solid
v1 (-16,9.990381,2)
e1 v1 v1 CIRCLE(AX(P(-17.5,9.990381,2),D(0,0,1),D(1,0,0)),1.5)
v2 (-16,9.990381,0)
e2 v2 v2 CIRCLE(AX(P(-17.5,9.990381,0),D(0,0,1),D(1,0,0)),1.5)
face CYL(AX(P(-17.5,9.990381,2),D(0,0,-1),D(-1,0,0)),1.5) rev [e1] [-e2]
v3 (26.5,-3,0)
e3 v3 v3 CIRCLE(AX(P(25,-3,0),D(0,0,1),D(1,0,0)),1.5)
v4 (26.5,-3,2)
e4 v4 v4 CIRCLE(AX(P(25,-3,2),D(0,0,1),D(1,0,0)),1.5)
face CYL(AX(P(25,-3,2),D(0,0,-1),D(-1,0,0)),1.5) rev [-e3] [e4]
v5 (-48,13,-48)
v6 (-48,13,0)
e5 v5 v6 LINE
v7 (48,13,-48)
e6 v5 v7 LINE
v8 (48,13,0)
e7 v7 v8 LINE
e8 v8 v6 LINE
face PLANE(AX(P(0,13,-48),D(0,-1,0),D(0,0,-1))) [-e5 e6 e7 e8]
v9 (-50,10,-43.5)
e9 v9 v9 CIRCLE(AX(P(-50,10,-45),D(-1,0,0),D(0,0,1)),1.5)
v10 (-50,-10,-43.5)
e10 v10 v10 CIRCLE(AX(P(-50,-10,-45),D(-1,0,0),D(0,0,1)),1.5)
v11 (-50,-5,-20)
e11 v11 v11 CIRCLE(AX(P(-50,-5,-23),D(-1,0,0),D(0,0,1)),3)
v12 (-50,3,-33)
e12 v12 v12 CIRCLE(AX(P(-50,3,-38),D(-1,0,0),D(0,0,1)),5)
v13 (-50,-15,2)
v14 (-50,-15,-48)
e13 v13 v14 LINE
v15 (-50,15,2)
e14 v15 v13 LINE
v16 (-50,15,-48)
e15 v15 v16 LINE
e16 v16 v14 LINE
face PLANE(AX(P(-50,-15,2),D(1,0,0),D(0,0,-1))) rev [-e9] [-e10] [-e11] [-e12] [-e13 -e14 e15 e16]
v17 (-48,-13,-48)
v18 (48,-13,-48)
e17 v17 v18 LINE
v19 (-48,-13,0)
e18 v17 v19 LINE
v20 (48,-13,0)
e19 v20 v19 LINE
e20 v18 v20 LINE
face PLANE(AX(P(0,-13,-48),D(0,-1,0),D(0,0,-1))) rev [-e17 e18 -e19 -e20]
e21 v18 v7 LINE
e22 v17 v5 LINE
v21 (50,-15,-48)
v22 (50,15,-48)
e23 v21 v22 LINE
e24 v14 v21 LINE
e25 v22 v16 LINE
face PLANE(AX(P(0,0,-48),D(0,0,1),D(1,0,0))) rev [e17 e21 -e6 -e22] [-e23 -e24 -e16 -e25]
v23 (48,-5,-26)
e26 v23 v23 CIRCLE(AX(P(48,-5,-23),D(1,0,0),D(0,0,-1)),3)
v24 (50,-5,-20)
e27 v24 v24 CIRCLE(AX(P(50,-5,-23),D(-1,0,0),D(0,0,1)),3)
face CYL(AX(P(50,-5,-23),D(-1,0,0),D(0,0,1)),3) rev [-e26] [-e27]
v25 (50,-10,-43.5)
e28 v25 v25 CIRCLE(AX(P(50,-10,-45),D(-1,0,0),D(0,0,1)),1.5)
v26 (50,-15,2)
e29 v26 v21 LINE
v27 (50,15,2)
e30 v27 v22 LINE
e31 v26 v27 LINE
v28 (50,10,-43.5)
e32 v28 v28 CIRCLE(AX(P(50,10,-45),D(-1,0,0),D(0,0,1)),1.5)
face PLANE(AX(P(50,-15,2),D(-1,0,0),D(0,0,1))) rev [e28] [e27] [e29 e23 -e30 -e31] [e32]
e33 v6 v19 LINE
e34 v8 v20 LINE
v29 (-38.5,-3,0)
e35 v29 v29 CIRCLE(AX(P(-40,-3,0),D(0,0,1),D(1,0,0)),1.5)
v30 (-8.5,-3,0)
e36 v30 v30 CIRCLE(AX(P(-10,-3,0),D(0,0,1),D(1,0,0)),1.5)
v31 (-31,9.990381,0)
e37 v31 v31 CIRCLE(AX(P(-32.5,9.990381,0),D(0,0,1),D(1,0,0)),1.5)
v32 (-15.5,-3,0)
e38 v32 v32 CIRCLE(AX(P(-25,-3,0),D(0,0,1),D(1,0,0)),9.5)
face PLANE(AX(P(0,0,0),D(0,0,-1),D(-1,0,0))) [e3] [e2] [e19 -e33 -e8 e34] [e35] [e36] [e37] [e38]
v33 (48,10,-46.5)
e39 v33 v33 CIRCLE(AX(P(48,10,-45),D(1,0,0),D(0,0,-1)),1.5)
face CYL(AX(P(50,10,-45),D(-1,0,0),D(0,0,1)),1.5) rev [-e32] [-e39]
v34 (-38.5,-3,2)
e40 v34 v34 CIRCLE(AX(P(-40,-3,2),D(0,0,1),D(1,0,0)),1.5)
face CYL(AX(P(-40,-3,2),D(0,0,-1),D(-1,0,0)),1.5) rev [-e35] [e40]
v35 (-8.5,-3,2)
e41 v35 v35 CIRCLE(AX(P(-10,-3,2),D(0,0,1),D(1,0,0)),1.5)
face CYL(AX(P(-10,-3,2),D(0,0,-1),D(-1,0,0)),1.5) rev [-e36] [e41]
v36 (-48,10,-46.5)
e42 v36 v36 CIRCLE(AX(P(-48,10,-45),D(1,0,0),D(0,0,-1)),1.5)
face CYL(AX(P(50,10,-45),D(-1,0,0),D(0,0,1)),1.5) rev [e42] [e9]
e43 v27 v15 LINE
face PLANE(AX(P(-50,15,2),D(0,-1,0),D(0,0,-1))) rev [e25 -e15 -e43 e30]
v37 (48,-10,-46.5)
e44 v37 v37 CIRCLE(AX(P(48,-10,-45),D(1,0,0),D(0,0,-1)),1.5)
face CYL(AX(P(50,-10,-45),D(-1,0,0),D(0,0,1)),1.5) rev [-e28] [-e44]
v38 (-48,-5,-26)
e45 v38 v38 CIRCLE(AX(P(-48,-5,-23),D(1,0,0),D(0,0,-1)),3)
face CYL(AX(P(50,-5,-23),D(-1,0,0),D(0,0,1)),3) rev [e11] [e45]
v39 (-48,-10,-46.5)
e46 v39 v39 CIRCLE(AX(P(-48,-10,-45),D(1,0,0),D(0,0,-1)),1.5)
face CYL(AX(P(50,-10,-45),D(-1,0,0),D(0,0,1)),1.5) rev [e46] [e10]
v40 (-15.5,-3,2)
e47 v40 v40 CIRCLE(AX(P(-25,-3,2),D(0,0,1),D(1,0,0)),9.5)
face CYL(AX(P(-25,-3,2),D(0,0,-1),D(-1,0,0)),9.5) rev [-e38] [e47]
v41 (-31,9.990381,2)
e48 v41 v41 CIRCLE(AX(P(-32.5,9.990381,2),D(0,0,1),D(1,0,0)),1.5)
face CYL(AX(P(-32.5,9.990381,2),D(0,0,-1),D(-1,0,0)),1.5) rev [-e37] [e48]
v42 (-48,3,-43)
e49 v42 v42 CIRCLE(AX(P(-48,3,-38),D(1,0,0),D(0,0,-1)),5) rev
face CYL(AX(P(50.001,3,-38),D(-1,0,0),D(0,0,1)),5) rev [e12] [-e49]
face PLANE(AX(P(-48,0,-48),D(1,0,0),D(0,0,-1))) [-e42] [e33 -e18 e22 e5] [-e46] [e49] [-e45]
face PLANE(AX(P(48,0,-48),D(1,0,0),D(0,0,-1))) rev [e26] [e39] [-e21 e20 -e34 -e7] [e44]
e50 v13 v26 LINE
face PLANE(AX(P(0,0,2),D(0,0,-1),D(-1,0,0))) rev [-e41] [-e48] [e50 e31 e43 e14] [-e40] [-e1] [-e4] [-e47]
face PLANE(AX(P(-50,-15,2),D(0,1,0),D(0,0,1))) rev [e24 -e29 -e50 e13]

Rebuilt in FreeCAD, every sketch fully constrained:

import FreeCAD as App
import Part
import Sketcher


def add_polygon(sketch, points):
    """Adds a closed chain of lines whose ends are joined by coincident constraints."""
    first, n = sketch.GeometryCount, len(points)
    for a, b in zip(points, points[1:] + points[:1]):
        sketch.addGeometry(Part.LineSegment(App.Vector(*a, 0), App.Vector(*b, 0)), False)
    for i in range(n):
        sketch.addConstraint(Sketcher.Constraint("Coincident", first + i, 2, first + (i + 1) % n, 1))

doc = App.newDocument("Part")
params = doc.addObject("Spreadsheet::Sheet", "Params")
for row, (alias, value) in enumerate([
    ("sketch1_diameter", "3 mm"),
    ("sketch1_diameter2", "19 mm"),
    ("sketch1_width", "100 mm"),
    ("sketch1_height", "30 mm"),
    ("pad1_length", "2 mm"),
    ("sketch2_width", "100 mm"),
    ("sketch2_width2", "96 mm"),
    ("sketch2_height", "30 mm"),
    ("sketch2_height2", "26 mm"),
    ("pad2_length", "50 mm"),
    ("sketch3_diameter", "10 mm"),
    ("sketch4_diameter", "3 mm"),
    ("sketch5_diameter", "6 mm"),
], start=1):
    params.set(f"A{row}", alias)
    params.set(f"B{row}", "=" + value)
    params.setAlias(f"B{row}", alias)

body = doc.addObject("PartDesign::Body", "Body")

sketch1 = body.newObject("Sketcher::SketchObject", "Sketch")
sketch1.AttachmentSupport = (doc.getObject("XY_Plane"), [""])
sketch1.MapMode = "FlatFace"
add_polygon(sketch1, [(-50, 15), (-50, -15), (50, -15), (50, 15)])
sketch1.addGeometry(Part.Circle(App.Vector(-40, -3, 0), App.Vector(0, 0, 1), 1.5), False)
sketch1.addGeometry(Part.Circle(App.Vector(-25, -3, 0), App.Vector(0, 0, 1), 9.5), False)
sketch1.addGeometry(Part.Circle(App.Vector(-10, -3, 0), App.Vector(0, 0, 1), 1.5), False)
sketch1.addGeometry(Part.Circle(App.Vector(25, -3, 0), App.Vector(0, 0, 1), 1.5), False)
sketch1.addGeometry(Part.Circle(App.Vector(-32.5, 9.990381, 0), App.Vector(0, 0, 1), 1.5), False)
sketch1.addGeometry(Part.Circle(App.Vector(-17.5, 9.990381, 0), App.Vector(0, 0, 1), 1.5), False)
sketch1.addConstraint(Sketcher.Constraint("Vertical", 0))
sketch1.addConstraint(Sketcher.Constraint("Horizontal", 1))
sketch1.addConstraint(Sketcher.Constraint("Vertical", 2))
sketch1.addConstraint(Sketcher.Constraint("Horizontal", 3))
sketch1.addConstraint(Sketcher.Constraint("Equal", 4, 6))
sketch1.addConstraint(Sketcher.Constraint("Equal", 6, 7))
sketch1.addConstraint(Sketcher.Constraint("Equal", 7, 8))
sketch1.addConstraint(Sketcher.Constraint("Equal", 8, 9))
sketch1.addConstraint(Sketcher.Constraint("Symmetric", 0, 2, 2, 2, -1, 1))
sketch1.addConstraint(Sketcher.Constraint("Symmetric", 5, 3, 7, 3, -2))
sketch1.addConstraint(Sketcher.Constraint("Horizontal", 4, 3, 5, 3))
sketch1.addConstraint(Sketcher.Constraint("Horizontal", 5, 3, 6, 3))
sketch1.addConstraint(Sketcher.Constraint("Horizontal", 8, 3, 9, 3))
sketch1.addConstraint(Sketcher.Constraint("Diameter", 4, 3.0))
sketch1.addConstraint(Sketcher.Constraint("Diameter", 5, 19.0))
sketch1.addConstraint(Sketcher.Constraint("DistanceX", 1, 1, 1, 2, 100.0))
sketch1.addConstraint(Sketcher.Constraint("DistanceY", 0, 2, 0, 1, 30.0))
sketch1.addConstraint(Sketcher.Constraint("DistanceX", 4, 3, -1, 1, 40.0))
sketch1.addConstraint(Sketcher.Constraint("DistanceY", 4, 3, -1, 1, 3.0))
sketch1.addConstraint(Sketcher.Constraint("DistanceX", 5, 3, -1, 1, 25.0))
sketch1.addConstraint(Sketcher.Constraint("DistanceX", 6, 3, -1, 1, 10.0))
sketch1.addConstraint(Sketcher.Constraint("DistanceX", 8, 3, 9, 3, 15.0))
sketch1.addConstraint(Sketcher.Constraint("DistanceX", 8, 3, -1, 1, 32.5))
sketch1.addConstraint(Sketcher.Constraint("DistanceY", -1, 1, 8, 3, 9.990381))
sketch1.setExpression("Constraints[17]", "Params.sketch1_diameter")
sketch1.setExpression("Constraints[18]", "Params.sketch1_diameter2")
sketch1.setExpression("Constraints[19]", "Params.sketch1_width")
sketch1.setExpression("Constraints[20]", "Params.sketch1_height")
pad1 = body.newObject("PartDesign::Pad", "Pad")
pad1.Profile = sketch1
pad1.setExpression("Length", "Params.pad1_length")

sketch2 = body.newObject("Sketcher::SketchObject", "Sketch001")
sketch2.AttachmentSupport = (doc.getObject("XY_Plane"), [""])
sketch2.MapMode = "FlatFace"
sketch2.AttachmentOffset = App.Placement(App.Vector(0, 0, 2), App.Rotation())
add_polygon(sketch2, [(-50, 15), (-50, -15), (50, -15), (50, 15)])
add_polygon(sketch2, [(48, -13), (-48, -13), (-48, 13), (48, 13)])
sketch2.addConstraint(Sketcher.Constraint("Vertical", 0))
sketch2.addConstraint(Sketcher.Constraint("Horizontal", 1))
sketch2.addConstraint(Sketcher.Constraint("Vertical", 2))
sketch2.addConstraint(Sketcher.Constraint("Horizontal", 3))
sketch2.addConstraint(Sketcher.Constraint("Horizontal", 4))
sketch2.addConstraint(Sketcher.Constraint("Vertical", 5))
sketch2.addConstraint(Sketcher.Constraint("Horizontal", 6))
sketch2.addConstraint(Sketcher.Constraint("Vertical", 7))
sketch2.addConstraint(Sketcher.Constraint("Symmetric", 0, 2, 2, 2, -1, 1))
sketch2.addConstraint(Sketcher.Constraint("Symmetric", 4, 2, 6, 2, -1, 1))
sketch2.addConstraint(Sketcher.Constraint("DistanceX", 1, 1, 1, 2, 100.0))
sketch2.addConstraint(Sketcher.Constraint("DistanceX", 4, 2, 4, 1, 96.0))
sketch2.addConstraint(Sketcher.Constraint("DistanceY", 0, 2, 0, 1, 30.0))
sketch2.addConstraint(Sketcher.Constraint("DistanceY", 5, 1, 5, 2, 26.0))
sketch2.setExpression("Constraints[18]", "Params.sketch2_width")
sketch2.setExpression("Constraints[19]", "Params.sketch2_width2")
sketch2.setExpression("Constraints[20]", "Params.sketch2_height")
sketch2.setExpression("Constraints[21]", "Params.sketch2_height2")
pad2 = body.newObject("PartDesign::Pad", "Pad001")
pad2.Profile = sketch2
pad2.setExpression("Length", "Params.pad2_length")
pad2.Reversed = True

sketch3 = body.newObject("Sketcher::SketchObject", "Sketch002")
sketch3.AttachmentSupport = (doc.getObject("YZ_Plane"), [""])
sketch3.MapMode = "FlatFace"
sketch3.AttachmentOffset = App.Placement(App.Vector(0, 0, -50), App.Rotation())
sketch3.addGeometry(Part.Circle(App.Vector(3, -38, 0), App.Vector(0, 0, 1), 5), False)
sketch3.addConstraint(Sketcher.Constraint("Diameter", 0, 10.0))
sketch3.addConstraint(Sketcher.Constraint("DistanceX", -1, 1, 0, 3, 3.0))
sketch3.addConstraint(Sketcher.Constraint("DistanceY", 0, 3, -1, 1, 38.0))
sketch3.setExpression("Constraints[0]", "Params.sketch3_diameter")
pocket1 = body.newObject("PartDesign::Pocket", "Pocket")
pocket1.Profile = sketch3
pocket1.Type = "UpToFirst"
pocket1.Reversed = True

sketch4 = body.newObject("Sketcher::SketchObject", "Sketch003")
sketch4.AttachmentSupport = (doc.getObject("YZ_Plane"), [""])
sketch4.MapMode = "FlatFace"
sketch4.AttachmentOffset = App.Placement(App.Vector(0, 0, -50), App.Rotation())
sketch4.addGeometry(Part.Circle(App.Vector(10, -45, 0), App.Vector(0, 0, 1), 1.5), False)
sketch4.addGeometry(Part.Circle(App.Vector(-10, -45, 0), App.Vector(0, 0, 1), 1.5), False)
sketch4.addConstraint(Sketcher.Constraint("Equal", 0, 1))
sketch4.addConstraint(Sketcher.Constraint("Symmetric", 0, 3, 1, 3, -2))
sketch4.addConstraint(Sketcher.Constraint("Diameter", 0, 3.0))
sketch4.addConstraint(Sketcher.Constraint("DistanceX", -1, 1, 0, 3, 10.0))
sketch4.addConstraint(Sketcher.Constraint("DistanceY", 0, 3, -1, 1, 45.0))
sketch4.setExpression("Constraints[2]", "Params.sketch4_diameter")
pocket2 = body.newObject("PartDesign::Pocket", "Pocket001")
pocket2.Profile = sketch4
pocket2.Type = "ThroughAll"
pocket2.Reversed = True

sketch5 = body.newObject("Sketcher::SketchObject", "Sketch004")
sketch5.AttachmentSupport = (doc.getObject("YZ_Plane"), [""])
sketch5.MapMode = "FlatFace"
sketch5.AttachmentOffset = App.Placement(App.Vector(0, 0, -50), App.Rotation())
sketch5.addGeometry(Part.Circle(App.Vector(-5, -23, 0), App.Vector(0, 0, 1), 3), False)
sketch5.addConstraint(Sketcher.Constraint("Diameter", 0, 6.0))
sketch5.addConstraint(Sketcher.Constraint("DistanceX", 0, 3, -1, 1, 5.0))
sketch5.addConstraint(Sketcher.Constraint("DistanceY", 0, 3, -1, 1, 23.0))
sketch5.setExpression("Constraints[0]", "Params.sketch5_diameter")
pocket3 = body.newObject("PartDesign::Pocket", "Pocket002")
pocket3.Profile = sketch5
pocket3.Type = "ThroughAll"
pocket3.Reversed = True

doc.recompute()
